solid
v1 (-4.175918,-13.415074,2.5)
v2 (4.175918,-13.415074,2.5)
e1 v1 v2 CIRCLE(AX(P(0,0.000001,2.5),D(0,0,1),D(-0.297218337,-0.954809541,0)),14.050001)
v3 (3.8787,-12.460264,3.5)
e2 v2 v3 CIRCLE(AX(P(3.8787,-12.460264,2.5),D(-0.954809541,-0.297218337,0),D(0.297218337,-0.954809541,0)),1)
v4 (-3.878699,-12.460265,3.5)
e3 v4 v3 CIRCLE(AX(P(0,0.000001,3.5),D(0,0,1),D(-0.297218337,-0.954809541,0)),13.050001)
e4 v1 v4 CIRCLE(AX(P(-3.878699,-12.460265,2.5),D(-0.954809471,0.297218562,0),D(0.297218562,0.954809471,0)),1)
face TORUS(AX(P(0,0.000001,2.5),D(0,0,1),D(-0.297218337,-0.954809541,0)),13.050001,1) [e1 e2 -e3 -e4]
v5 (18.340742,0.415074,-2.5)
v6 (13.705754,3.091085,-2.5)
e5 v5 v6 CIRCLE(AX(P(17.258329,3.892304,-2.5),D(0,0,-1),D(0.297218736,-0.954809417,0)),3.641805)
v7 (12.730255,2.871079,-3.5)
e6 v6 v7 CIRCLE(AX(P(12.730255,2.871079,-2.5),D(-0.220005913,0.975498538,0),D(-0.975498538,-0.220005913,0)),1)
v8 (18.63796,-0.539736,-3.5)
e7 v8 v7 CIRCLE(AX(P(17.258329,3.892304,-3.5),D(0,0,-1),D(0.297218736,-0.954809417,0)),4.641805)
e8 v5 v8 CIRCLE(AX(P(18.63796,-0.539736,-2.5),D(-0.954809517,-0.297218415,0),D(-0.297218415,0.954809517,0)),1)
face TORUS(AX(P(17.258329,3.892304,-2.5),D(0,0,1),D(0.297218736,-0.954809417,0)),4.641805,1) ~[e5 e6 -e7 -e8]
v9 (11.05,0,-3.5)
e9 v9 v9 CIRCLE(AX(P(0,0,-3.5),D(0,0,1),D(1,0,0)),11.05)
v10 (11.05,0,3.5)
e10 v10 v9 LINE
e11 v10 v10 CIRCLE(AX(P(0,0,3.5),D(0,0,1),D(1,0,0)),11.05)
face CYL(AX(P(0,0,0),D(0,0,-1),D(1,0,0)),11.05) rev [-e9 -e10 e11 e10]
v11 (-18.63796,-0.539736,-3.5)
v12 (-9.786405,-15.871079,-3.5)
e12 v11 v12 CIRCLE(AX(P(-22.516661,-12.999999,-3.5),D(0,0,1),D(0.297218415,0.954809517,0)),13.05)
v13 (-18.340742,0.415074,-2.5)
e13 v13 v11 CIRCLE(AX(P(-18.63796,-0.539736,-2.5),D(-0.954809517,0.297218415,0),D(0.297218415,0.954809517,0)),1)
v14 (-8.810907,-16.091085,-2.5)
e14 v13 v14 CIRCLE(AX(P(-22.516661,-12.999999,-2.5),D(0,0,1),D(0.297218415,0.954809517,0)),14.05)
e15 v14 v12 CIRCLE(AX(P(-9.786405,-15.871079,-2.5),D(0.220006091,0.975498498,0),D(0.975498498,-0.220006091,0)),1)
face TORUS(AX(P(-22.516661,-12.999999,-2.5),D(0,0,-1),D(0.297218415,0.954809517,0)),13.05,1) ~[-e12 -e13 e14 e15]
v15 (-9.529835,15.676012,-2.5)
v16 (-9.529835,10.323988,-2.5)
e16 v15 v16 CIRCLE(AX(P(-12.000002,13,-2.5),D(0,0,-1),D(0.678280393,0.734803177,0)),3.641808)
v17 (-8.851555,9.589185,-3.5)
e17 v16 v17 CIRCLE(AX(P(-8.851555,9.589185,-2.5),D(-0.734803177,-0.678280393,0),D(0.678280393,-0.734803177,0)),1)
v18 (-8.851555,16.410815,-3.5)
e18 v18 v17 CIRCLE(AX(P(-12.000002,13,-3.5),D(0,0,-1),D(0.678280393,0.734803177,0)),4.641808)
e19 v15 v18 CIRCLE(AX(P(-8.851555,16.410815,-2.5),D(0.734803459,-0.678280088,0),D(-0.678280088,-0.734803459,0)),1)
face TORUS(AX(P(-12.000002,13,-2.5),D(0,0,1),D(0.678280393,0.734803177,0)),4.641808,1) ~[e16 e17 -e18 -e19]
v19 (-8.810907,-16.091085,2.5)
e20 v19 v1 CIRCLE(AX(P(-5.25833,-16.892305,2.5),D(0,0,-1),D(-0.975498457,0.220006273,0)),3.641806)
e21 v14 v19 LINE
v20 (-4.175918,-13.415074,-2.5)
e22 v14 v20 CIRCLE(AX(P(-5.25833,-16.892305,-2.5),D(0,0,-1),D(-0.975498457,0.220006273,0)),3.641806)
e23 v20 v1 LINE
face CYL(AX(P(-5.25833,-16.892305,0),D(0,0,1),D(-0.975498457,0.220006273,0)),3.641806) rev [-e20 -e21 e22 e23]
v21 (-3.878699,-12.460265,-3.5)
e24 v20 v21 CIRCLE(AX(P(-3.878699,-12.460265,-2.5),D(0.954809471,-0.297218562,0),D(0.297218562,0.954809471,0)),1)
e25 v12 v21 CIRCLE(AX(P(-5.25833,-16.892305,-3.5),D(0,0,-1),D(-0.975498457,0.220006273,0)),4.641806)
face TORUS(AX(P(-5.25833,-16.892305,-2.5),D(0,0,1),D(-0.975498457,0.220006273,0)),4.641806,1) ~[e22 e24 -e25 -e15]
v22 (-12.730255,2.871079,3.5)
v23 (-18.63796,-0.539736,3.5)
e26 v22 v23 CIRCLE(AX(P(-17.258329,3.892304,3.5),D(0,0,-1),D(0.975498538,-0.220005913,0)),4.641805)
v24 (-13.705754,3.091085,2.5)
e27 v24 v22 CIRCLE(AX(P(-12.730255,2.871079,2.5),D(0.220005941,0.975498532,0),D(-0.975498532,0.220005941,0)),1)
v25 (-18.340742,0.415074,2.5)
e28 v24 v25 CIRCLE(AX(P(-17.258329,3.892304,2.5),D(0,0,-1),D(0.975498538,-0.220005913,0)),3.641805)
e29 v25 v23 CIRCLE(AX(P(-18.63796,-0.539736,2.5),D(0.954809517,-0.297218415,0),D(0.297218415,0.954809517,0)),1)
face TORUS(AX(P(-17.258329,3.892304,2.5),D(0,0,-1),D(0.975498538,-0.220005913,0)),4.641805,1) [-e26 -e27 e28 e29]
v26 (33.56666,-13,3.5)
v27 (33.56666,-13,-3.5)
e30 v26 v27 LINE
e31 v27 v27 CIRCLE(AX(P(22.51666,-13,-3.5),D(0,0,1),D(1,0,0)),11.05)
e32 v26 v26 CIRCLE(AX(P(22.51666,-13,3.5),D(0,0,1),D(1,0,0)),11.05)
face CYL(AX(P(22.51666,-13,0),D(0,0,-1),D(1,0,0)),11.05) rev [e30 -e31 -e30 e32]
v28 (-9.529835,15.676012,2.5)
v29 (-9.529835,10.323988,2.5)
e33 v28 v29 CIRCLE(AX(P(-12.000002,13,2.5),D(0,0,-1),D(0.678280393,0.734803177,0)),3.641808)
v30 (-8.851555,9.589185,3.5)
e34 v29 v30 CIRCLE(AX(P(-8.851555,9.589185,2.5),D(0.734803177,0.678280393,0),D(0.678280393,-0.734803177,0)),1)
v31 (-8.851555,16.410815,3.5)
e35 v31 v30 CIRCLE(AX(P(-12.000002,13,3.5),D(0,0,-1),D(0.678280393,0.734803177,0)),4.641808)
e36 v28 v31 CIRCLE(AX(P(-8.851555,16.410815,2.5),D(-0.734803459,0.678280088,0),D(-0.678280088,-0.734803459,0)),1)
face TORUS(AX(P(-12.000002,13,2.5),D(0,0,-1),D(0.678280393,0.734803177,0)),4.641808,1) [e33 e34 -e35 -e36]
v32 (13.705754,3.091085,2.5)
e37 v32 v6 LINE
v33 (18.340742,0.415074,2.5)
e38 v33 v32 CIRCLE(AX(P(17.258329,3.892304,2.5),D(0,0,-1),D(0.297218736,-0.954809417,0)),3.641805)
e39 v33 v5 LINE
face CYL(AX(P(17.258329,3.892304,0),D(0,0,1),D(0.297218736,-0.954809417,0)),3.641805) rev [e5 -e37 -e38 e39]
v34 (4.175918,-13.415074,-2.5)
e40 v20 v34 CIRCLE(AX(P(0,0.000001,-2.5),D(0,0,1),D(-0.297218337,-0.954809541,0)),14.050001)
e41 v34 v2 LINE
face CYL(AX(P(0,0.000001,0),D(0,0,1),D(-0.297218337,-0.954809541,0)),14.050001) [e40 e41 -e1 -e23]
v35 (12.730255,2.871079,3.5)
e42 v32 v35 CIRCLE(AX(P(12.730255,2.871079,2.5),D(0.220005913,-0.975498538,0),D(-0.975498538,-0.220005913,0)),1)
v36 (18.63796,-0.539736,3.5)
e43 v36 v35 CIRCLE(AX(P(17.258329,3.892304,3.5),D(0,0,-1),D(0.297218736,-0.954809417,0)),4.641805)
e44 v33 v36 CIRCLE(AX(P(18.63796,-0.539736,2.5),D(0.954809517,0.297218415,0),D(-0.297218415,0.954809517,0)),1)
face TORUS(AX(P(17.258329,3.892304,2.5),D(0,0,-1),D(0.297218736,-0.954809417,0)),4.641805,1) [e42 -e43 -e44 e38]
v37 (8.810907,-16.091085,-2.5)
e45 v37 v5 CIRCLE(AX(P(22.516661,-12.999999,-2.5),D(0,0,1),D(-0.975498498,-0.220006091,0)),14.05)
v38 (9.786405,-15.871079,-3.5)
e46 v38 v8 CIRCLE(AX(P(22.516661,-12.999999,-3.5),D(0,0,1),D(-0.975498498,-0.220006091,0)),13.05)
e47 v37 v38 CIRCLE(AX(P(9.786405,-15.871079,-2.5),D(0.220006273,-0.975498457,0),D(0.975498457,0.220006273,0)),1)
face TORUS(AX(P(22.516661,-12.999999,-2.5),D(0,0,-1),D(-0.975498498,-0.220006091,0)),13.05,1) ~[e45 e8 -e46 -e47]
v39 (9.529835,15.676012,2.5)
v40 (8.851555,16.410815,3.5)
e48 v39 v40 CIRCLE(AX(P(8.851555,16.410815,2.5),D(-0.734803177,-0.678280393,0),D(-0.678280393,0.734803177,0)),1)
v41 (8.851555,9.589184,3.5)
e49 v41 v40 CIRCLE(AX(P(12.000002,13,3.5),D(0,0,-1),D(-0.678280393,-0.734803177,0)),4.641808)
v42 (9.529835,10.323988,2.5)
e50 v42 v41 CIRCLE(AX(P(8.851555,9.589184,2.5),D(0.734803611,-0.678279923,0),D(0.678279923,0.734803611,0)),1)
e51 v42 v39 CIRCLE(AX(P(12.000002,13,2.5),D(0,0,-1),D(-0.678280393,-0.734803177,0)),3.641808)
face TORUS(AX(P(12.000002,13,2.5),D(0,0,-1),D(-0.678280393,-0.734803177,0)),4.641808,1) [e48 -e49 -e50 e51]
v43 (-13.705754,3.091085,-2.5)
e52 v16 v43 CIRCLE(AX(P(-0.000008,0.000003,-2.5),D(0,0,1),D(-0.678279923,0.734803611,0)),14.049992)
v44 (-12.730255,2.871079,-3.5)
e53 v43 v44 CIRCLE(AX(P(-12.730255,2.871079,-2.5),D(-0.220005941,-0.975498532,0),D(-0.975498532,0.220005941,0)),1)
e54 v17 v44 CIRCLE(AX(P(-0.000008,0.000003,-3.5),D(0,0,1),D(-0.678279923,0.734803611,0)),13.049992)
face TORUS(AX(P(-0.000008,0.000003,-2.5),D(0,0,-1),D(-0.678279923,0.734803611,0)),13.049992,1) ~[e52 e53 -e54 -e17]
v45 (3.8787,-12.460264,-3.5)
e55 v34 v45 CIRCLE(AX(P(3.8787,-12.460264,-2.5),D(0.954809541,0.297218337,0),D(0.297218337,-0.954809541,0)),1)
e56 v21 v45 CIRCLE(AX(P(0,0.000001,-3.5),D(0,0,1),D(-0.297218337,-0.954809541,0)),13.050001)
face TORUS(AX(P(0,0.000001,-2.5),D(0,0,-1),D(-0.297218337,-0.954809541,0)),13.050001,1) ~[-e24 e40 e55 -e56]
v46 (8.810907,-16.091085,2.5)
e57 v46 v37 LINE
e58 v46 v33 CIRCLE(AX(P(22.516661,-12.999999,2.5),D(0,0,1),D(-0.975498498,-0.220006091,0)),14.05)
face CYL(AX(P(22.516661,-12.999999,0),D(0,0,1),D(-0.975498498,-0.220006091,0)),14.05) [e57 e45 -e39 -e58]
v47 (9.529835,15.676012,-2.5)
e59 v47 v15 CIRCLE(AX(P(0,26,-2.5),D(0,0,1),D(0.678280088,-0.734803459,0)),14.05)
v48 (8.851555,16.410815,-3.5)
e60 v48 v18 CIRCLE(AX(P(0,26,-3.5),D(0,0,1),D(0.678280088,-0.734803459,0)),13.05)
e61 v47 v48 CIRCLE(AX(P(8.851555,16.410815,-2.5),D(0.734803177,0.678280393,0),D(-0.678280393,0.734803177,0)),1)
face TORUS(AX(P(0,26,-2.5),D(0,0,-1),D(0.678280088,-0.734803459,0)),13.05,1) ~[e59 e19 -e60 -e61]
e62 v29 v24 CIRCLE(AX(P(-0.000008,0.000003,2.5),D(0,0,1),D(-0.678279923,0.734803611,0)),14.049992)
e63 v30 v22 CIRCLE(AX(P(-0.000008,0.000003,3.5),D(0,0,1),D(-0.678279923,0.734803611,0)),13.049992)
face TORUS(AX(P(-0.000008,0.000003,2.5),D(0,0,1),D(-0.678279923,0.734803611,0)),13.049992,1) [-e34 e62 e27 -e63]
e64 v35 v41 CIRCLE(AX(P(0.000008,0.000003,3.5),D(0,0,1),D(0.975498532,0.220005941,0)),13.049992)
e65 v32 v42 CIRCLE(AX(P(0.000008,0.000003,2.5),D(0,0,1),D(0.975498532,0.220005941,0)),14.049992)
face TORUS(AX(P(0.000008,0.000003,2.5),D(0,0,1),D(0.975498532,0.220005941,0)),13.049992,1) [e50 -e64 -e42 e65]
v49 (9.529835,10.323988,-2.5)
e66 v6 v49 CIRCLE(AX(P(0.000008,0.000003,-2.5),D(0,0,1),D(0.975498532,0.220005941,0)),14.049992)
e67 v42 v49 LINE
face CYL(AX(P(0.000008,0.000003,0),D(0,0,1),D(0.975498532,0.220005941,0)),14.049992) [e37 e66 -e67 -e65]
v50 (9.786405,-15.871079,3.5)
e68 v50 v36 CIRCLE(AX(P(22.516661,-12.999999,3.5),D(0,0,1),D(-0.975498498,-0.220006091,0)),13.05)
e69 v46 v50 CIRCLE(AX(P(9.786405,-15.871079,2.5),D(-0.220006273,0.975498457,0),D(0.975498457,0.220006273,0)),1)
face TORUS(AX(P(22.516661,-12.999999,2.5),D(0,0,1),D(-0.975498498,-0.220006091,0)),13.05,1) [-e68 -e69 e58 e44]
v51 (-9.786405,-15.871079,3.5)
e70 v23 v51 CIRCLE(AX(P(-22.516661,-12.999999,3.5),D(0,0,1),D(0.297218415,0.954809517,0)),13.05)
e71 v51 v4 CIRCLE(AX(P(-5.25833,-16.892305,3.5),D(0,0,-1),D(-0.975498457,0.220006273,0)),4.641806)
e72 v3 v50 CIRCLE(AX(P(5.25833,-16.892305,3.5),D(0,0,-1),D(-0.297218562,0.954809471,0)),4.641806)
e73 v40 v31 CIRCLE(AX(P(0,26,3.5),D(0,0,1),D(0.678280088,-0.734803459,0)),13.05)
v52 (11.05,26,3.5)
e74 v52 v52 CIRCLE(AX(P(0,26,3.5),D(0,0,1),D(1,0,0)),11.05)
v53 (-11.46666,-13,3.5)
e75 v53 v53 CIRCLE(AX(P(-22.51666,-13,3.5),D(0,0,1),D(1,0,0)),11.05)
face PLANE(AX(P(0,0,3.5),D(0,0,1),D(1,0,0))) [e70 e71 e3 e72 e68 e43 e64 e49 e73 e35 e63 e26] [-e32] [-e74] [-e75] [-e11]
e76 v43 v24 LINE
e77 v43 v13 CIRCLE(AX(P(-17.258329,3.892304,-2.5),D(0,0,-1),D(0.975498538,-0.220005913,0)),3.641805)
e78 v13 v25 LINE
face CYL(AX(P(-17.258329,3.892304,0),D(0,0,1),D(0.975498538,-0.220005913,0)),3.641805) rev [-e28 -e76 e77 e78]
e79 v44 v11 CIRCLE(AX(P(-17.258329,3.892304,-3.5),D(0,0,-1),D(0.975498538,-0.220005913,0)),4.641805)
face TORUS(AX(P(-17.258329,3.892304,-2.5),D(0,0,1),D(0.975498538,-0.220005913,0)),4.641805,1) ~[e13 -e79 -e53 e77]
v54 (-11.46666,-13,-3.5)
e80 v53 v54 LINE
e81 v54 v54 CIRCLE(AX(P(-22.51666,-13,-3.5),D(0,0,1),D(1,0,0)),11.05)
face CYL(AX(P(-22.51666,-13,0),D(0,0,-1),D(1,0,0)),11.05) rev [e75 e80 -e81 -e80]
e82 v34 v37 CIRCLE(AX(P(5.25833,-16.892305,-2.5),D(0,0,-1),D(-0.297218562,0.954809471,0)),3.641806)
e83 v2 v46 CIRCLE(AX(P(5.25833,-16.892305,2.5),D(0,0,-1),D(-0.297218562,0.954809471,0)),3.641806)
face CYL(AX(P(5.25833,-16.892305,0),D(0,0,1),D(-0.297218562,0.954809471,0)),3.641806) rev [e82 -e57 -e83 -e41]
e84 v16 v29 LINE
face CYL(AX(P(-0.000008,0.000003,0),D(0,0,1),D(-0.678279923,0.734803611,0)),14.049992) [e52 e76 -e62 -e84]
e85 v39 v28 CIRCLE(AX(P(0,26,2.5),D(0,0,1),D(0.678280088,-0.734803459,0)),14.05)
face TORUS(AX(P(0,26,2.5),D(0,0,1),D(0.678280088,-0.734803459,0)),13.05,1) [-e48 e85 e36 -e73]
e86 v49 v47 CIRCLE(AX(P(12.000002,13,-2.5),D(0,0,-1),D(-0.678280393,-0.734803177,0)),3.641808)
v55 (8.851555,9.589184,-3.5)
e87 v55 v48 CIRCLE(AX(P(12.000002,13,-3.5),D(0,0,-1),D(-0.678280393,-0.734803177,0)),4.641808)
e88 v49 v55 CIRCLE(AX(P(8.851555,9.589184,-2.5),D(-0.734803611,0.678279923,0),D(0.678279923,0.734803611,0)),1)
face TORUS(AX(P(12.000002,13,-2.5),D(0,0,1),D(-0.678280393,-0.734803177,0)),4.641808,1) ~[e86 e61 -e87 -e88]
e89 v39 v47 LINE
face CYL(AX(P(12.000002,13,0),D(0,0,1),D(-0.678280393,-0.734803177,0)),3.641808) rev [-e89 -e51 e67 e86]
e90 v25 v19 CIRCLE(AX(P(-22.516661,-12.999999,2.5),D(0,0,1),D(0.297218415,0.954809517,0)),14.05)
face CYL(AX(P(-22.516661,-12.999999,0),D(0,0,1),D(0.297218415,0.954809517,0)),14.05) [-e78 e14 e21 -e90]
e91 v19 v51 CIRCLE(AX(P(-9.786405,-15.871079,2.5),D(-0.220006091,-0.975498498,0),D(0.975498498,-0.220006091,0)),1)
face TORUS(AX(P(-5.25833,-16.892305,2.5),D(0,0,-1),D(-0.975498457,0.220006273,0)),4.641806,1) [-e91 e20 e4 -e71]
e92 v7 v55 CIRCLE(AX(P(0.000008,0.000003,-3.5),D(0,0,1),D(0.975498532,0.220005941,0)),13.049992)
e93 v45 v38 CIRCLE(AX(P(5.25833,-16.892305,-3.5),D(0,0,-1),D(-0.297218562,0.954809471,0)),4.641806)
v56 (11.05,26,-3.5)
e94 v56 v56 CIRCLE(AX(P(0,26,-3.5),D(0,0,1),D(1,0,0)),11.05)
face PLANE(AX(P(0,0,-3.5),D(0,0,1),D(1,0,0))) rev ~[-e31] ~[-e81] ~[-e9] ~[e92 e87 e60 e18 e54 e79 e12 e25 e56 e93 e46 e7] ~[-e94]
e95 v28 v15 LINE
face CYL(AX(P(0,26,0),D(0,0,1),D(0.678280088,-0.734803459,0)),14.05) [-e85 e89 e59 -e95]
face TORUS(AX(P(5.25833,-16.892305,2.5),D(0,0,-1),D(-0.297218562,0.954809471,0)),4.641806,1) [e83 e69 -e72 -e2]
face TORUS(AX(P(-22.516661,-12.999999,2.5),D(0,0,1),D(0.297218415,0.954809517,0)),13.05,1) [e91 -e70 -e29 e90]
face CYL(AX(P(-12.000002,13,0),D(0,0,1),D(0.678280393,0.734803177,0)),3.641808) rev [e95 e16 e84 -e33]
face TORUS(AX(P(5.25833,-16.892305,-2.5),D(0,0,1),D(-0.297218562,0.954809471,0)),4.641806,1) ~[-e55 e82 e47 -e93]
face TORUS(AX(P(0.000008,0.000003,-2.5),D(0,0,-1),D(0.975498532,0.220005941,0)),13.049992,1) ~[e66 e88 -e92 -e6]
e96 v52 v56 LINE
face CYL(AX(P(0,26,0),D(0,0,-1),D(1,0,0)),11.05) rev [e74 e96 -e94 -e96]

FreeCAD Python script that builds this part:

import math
import FreeCAD as App
import Part
import Sketcher

V = App.Vector


def edges_at(feature, points):
    """Names of the edges that pass closest to the given points."""
    edges = feature.Shape.Edges
    near = lambda p: min(range(len(edges)), key=lambda i: edges[i].distToShape(Part.Vertex(*p))[0])
    return sorted({f"Edge{near(p) + 1}" for p in points})

doc = App.newDocument("Part")
body = doc.addObject("PartDesign::Body", "Body")

# Sketch on XY plane
sketch1 = body.newObject("Sketcher::SketchObject", "Sketch")
sketch1.AttachmentSupport = (doc.getObject("XY_Plane"), [""])
sketch1.MapMode = "FlatFace"
sketch1.addGeometry([
    Part.ArcOfCircle(Part.Circle(V(-12.000002, 13, 0), V(0, 0, 1), 3.641808), math.radians(-47.290587), math.radians(47.290587)),  # 0
    Part.ArcOfCircle(Part.Circle(V(-0.000008, 0.000003, 0), V(0, 0, 1), 14.049992), math.radians(132.709376), math.radians(167.290618)),  # 1
    Part.ArcOfCircle(Part.Circle(V(-17.258329, 3.892304, 0), V(0, 0, 1), 3.641805), math.radians(-107.29063), math.radians(-12.70938)),  # 2
    Part.ArcOfCircle(Part.Circle(V(-22.516661, -12.999999, 0), V(0, 0, 1), 14.05), math.radians(72.709389), math.radians(347.290609)),  # 3
    Part.ArcOfCircle(Part.Circle(V(-5.25833, -16.892305, 0), V(0, 0, 1), 3.641806), math.radians(72.70938), math.radians(167.290599)),  # 4
    Part.ArcOfCircle(Part.Circle(V(0, 0.000001, 0), V(0, 0, 1), 14.050001), math.radians(-107.290606), math.radians(-72.709394)),  # 5
    Part.ArcOfCircle(Part.Circle(V(5.25833, -16.892305, 0), V(0, 0, 1), 3.641806), math.radians(12.709401), math.radians(107.29062)),  # 6
    Part.ArcOfCircle(Part.Circle(V(22.516661, -12.999999, 0), V(0, 0, 1), 14.05), math.radians(-167.290609), math.radians(107.290611)),  # 7
    Part.ArcOfCircle(Part.Circle(V(17.258329, 3.892304, 0), V(0, 0, 1), 3.641805), math.radians(-167.29062), math.radians(-72.70937)),  # 8
    Part.ArcOfCircle(Part.Circle(V(0.000008, 0.000003, 0), V(0, 0, 1), 14.049992), math.radians(12.709382), math.radians(47.290624)),  # 9
    Part.ArcOfCircle(Part.Circle(V(12.000002, 13, 0), V(0, 0, 1), 3.641808), math.radians(132.709413), math.radians(227.290587)),  # 10
    Part.ArcOfCircle(Part.Circle(V(0, 26, 0), V(0, 0, 1), 14.05), math.radians(-47.290611), math.radians(227.290611)),  # 11
    Part.Circle(V(-22.51666, -13, 0), V(0, 0, 1), 11.05),  # 12
    Part.Circle(V(22.51666, -13, 0), V(0, 0, 1), 11.05),  # 13
    Part.Circle(V(0, 0, 0), V(0, 0, 1), 11.05),  # 14
    Part.Circle(V(0, 26, 0), V(0, 0, 1), 11.05),  # 15
], False)
sketch1.addConstraint([
    Sketcher.Constraint("Tangent", 0, 1, 1, 1),
    Sketcher.Constraint("Tangent", 1, 2, 2, 2),
    Sketcher.Constraint("Tangent", 2, 1, 3, 1),
    Sketcher.Constraint("Tangent", 3, 2, 4, 2),
    Sketcher.Constraint("Tangent", 4, 1, 5, 1),
    Sketcher.Constraint("Tangent", 5, 2, 6, 2),
    Sketcher.Constraint("Tangent", 6, 1, 7, 1),
    Sketcher.Constraint("Tangent", 7, 2, 8, 2),
    Sketcher.Constraint("Tangent", 8, 1, 9, 1),
    Sketcher.Constraint("Tangent", 9, 2, 10, 2),
    Sketcher.Constraint("Tangent", 10, 1, 11, 1),
    Sketcher.Constraint("Tangent", 11, 2, 0, 2),
    Sketcher.Constraint("Coincident", 1, 3, -1, 1),
    Sketcher.Constraint("Coincident", 5, 3, -1, 1),
    Sketcher.Constraint("Coincident", 9, 3, -1, 1),
    Sketcher.Constraint("Coincident", 14, 3, -1, 1),
    Sketcher.Constraint("Coincident", 12, 3, 3, 3),
    Sketcher.Constraint("Coincident", 13, 3, 7, 3),
    Sketcher.Constraint("Coincident", 15, 3, 11, 3),
    Sketcher.Constraint("Equal", 2, 4),
    Sketcher.Constraint("Equal", 3, 5),
    Sketcher.Constraint("Equal", 4, 6),
    Sketcher.Constraint("Equal", 5, 7),
    Sketcher.Constraint("Equal", 6, 8),
    Sketcher.Constraint("Equal", 1, 9),
    Sketcher.Constraint("Equal", 6, 10),
    Sketcher.Constraint("Equal", 7, 11),
    Sketcher.Constraint("Equal", 12, 13),
    Sketcher.Constraint("Equal", 13, 14),
    Sketcher.Constraint("Equal", 14, 15),
    Sketcher.Constraint("Symmetric", 3, 3, 7, 3, -2),
    Sketcher.Constraint("Symmetric", 0, 3, 10, 3, -2),
    Sketcher.Constraint("Vertical", 9, 2, 10, 1),
    Sketcher.Constraint("Diameter", 12, 22.1),
    Sketcher.Constraint("Radius", 3, 14.05),
    Sketcher.Constraint("DistanceX", 0, 3, -1, 1, 12.000002),
    Sketcher.Constraint("DistanceY", -1, 1, 0, 3, 13.0),
    Sketcher.Constraint("DistanceY", 3, 3, -1, 1, 12.999999),
    Sketcher.Constraint("DistanceX", 2, 3, 4, 3, 11.999999),
])
pad1 = body.newObject("PartDesign::Pad", "Pad")
pad1.Profile = sketch1
pad1.Length = 7
pad1.Midplane = True
doc.recompute()

fillet = body.newObject("PartDesign::Fillet", "Fillet")
fillet.Base = (pad1, edges_at(pad1, [(-34.684, -20.025, 3.5), (-34.684, -20.025, -3.5)]))
fillet.Radius = 1

doc.recompute()
